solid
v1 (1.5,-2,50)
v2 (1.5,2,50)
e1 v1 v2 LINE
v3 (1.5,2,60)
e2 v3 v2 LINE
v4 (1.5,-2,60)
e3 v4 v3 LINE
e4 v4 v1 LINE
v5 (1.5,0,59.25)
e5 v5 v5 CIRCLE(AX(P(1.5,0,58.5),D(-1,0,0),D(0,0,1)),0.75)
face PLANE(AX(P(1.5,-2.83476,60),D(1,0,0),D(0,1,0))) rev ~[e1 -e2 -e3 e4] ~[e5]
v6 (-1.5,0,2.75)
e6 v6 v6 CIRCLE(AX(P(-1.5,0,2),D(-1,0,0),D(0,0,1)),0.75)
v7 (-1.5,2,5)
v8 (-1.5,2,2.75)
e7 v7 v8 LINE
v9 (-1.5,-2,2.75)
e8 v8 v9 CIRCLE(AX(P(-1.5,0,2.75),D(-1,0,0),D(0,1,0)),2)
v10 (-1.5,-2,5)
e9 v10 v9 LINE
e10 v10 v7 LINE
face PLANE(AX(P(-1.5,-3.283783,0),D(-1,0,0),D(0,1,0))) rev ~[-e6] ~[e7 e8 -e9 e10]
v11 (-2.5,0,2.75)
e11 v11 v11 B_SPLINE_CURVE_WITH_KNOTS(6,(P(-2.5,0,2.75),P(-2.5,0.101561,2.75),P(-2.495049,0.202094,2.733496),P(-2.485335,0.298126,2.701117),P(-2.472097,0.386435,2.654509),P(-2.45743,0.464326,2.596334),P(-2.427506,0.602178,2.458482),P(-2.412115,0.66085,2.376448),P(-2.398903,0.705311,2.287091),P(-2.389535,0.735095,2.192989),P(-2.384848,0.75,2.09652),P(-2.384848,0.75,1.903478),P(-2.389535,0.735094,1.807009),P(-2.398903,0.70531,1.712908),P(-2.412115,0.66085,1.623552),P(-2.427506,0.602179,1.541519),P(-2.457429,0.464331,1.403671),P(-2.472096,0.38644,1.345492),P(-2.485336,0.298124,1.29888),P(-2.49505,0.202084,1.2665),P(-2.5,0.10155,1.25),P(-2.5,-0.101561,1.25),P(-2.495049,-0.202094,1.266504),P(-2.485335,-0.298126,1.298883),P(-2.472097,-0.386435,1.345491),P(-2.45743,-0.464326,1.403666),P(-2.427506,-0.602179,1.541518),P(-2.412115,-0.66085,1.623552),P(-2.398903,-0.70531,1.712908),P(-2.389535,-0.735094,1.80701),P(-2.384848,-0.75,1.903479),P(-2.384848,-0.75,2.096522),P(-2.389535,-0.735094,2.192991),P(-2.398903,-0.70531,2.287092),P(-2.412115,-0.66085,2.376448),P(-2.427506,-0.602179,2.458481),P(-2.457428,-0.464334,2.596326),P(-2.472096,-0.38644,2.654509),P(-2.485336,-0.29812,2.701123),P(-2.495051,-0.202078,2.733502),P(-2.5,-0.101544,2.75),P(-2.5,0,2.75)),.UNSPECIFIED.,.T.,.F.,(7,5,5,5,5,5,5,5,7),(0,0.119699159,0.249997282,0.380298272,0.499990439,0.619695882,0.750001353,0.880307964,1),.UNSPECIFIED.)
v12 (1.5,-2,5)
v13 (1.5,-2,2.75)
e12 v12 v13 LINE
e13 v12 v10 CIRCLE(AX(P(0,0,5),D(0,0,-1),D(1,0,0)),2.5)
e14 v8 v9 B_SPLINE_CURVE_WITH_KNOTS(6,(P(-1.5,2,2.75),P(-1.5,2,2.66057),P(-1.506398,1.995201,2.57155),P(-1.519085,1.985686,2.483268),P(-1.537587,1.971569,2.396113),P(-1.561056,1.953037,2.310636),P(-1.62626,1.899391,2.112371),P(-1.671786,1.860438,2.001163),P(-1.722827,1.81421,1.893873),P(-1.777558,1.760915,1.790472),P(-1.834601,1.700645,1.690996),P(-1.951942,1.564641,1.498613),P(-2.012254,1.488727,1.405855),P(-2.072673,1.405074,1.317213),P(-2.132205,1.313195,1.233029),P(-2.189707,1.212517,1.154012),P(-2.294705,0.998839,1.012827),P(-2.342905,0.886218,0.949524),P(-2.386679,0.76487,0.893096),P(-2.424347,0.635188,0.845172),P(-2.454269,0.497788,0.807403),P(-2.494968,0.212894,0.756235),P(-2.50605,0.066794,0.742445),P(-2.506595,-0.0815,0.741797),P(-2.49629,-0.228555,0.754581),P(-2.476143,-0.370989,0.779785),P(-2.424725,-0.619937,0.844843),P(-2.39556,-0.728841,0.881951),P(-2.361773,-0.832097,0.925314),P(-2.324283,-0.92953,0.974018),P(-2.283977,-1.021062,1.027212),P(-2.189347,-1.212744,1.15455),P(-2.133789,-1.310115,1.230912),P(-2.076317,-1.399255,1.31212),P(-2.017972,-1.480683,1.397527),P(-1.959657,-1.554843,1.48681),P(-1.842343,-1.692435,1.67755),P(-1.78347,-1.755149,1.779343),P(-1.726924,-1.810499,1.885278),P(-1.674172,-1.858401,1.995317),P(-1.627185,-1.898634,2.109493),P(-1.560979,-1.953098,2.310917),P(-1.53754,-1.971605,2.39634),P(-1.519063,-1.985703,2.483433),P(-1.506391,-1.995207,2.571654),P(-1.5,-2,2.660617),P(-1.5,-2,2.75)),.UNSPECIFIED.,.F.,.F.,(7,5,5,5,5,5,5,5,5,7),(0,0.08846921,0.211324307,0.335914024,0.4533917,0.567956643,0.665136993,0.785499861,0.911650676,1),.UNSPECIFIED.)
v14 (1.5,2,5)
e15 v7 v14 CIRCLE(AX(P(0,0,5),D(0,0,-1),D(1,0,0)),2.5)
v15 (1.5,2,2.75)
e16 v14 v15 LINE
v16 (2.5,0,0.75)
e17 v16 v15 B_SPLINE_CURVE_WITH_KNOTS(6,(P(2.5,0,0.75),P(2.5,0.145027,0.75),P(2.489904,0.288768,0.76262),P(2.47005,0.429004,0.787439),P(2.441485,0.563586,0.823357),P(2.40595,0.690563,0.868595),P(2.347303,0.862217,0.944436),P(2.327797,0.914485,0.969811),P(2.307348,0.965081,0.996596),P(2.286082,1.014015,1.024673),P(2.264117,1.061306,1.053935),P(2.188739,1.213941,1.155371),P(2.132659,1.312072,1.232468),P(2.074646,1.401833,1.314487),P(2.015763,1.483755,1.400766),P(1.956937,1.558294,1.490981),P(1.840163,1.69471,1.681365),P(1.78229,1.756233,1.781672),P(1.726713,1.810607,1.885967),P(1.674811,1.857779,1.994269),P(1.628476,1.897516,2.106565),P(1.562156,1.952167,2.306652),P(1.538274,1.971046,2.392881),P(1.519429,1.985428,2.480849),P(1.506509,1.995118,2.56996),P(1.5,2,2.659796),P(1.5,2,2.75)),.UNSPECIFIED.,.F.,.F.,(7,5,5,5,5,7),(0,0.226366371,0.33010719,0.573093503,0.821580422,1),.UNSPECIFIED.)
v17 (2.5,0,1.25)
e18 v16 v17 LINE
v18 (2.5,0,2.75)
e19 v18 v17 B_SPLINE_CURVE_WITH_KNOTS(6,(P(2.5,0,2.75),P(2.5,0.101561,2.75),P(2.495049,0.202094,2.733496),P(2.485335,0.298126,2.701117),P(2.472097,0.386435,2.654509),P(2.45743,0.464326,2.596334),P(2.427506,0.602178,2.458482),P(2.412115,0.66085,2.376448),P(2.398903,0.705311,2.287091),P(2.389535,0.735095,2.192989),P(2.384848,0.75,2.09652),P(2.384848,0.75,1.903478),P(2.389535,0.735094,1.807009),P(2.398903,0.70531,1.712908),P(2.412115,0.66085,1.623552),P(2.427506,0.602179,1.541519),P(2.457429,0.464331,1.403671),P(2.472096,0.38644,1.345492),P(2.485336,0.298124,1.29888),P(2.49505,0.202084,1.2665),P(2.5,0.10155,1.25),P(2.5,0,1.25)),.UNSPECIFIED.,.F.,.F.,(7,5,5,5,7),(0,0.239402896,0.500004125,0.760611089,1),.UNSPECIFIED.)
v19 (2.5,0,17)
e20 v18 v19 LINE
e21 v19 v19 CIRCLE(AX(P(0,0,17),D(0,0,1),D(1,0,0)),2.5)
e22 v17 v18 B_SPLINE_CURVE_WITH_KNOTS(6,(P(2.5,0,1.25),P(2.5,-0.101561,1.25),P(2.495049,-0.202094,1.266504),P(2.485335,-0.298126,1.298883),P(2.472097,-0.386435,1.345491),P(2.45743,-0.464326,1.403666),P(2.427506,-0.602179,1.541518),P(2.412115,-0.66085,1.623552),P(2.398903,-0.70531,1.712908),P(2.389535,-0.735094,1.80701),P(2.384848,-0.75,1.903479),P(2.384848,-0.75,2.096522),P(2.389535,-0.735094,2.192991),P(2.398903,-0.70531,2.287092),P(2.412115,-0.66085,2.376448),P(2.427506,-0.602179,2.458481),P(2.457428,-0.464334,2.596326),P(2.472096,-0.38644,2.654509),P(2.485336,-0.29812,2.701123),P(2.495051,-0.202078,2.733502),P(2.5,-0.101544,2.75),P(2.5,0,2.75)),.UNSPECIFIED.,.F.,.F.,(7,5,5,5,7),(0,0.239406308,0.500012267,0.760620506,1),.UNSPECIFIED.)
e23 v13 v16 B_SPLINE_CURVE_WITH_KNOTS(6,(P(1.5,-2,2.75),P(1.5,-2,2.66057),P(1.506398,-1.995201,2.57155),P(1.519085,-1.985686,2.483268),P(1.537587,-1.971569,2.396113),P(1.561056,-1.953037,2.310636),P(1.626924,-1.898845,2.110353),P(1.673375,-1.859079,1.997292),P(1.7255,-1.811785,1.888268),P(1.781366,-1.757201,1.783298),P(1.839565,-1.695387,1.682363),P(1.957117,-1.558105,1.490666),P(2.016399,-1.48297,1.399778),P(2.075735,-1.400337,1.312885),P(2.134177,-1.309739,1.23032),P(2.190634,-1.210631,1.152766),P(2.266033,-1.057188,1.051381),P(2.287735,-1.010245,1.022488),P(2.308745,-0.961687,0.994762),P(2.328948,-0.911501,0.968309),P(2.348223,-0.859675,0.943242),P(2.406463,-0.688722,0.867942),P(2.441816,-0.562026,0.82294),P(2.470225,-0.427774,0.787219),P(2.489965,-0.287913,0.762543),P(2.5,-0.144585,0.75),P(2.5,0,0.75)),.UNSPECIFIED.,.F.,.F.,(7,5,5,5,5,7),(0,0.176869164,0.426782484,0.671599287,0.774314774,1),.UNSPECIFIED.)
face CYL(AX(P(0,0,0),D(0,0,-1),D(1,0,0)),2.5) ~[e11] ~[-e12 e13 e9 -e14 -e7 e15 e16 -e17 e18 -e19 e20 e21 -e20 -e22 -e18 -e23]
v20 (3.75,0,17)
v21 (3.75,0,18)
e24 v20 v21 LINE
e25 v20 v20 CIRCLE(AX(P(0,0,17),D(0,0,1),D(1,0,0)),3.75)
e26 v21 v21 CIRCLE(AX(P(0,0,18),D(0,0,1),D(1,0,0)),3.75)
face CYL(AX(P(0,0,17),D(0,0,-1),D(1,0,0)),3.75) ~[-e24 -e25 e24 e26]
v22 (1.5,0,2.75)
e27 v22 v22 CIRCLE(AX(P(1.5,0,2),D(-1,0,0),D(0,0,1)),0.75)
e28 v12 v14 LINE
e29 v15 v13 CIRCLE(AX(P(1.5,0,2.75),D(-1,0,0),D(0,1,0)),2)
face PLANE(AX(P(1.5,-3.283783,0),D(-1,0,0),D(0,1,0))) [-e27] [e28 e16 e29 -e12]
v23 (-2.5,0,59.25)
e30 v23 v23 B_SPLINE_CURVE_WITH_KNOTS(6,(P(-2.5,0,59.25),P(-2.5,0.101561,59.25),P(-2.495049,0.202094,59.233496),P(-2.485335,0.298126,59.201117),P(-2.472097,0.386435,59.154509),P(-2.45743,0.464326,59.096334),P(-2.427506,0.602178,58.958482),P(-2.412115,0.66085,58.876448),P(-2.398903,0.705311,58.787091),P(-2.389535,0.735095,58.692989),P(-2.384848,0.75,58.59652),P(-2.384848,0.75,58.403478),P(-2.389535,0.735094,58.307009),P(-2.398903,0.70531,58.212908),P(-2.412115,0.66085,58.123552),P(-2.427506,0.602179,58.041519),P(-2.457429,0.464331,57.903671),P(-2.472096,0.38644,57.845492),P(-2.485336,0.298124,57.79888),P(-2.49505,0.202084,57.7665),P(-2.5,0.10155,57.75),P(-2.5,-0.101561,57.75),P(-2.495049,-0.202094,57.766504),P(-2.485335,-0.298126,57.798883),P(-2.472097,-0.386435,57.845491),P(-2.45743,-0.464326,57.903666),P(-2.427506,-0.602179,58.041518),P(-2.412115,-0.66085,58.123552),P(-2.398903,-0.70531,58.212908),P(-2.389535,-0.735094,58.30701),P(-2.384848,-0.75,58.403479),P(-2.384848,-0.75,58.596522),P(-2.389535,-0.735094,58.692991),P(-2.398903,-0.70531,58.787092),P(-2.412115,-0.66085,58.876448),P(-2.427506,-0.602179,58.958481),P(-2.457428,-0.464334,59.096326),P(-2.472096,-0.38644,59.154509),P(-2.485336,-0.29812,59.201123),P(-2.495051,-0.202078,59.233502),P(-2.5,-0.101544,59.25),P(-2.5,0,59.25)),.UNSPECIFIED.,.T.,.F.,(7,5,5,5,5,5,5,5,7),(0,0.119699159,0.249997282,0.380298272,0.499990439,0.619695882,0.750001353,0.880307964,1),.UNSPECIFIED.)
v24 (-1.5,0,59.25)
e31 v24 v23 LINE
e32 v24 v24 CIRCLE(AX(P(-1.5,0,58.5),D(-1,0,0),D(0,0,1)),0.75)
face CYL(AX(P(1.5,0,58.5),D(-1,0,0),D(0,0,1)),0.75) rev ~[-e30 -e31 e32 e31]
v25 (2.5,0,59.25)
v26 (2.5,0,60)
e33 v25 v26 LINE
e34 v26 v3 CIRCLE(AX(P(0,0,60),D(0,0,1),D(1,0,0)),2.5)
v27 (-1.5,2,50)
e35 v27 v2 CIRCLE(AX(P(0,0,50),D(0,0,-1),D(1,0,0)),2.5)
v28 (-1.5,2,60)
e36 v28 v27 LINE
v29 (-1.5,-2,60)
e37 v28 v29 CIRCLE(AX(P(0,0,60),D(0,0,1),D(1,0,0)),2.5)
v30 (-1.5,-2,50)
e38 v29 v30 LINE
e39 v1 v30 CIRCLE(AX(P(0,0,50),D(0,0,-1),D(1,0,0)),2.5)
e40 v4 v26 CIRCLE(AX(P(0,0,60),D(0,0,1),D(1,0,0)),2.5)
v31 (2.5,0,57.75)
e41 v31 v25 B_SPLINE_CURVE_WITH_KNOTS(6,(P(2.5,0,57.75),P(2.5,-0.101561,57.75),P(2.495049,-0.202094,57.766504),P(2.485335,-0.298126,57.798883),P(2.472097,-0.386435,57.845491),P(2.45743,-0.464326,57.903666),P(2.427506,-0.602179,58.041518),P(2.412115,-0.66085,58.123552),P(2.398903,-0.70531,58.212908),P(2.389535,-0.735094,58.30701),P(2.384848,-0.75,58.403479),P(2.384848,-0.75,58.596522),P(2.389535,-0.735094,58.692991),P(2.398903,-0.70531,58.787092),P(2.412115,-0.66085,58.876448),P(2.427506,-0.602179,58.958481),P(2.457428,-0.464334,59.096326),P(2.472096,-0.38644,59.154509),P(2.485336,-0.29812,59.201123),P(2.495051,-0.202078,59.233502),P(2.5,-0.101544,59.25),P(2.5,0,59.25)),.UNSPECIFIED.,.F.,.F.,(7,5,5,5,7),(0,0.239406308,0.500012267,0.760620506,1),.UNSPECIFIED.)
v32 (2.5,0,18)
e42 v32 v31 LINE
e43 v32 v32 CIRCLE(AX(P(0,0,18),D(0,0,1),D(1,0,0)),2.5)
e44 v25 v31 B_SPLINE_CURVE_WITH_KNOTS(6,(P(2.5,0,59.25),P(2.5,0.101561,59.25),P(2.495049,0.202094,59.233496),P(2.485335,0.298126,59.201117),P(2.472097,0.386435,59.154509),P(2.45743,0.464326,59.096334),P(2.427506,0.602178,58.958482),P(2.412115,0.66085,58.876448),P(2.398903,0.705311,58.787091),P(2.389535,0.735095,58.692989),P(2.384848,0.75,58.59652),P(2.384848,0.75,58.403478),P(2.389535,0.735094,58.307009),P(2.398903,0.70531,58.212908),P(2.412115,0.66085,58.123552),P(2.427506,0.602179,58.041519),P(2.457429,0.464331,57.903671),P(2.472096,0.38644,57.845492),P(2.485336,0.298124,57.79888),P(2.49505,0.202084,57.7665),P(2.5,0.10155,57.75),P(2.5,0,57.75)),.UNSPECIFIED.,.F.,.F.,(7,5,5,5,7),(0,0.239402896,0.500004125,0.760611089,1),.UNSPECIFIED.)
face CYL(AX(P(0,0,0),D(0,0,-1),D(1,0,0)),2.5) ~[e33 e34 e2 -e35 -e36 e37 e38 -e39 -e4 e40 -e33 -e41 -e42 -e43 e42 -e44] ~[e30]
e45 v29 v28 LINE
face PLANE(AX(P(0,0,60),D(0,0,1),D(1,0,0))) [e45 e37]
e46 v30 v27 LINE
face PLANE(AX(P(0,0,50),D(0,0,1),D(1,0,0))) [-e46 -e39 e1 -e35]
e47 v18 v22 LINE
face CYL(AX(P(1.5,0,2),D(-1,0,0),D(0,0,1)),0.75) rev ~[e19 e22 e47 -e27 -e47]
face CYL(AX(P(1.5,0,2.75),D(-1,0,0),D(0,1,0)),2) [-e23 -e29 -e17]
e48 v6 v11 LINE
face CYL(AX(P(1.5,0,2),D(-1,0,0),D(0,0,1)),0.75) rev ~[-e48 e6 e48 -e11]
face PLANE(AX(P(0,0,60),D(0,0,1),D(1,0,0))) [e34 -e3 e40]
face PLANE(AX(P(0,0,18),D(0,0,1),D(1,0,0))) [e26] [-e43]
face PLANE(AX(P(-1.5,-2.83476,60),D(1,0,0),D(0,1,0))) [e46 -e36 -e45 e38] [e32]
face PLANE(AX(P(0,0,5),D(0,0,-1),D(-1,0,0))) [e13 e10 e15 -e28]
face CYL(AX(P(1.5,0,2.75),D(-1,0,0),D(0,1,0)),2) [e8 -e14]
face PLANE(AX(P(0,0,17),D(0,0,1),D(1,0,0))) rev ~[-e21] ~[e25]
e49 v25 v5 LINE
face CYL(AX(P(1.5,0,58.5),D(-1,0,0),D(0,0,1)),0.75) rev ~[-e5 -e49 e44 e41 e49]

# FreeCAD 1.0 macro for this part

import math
import FreeCAD as App
import Part
import Sketcher
from FreeCAD import Vector
Q = App.Units.Quantity

doc = App.newDocument("Part")
body = doc.addObject("PartDesign::Body", "Body")

# Sketch on XY plane
sketch1 = doc.addObject("Sketcher::SketchObject", "Sketch")
body.addObject(sketch1)
sketch1.AttachmentSupport = (doc.XY_Plane, [""])
sketch1.MapMode = "FlatFace"
sketch1.addGeometry(Part.Circle(Vector(0, 0, 0), Vector(0, 0, 1), 2.5), False)
sketch1.addConstraint([
    Sketcher.Constraint("Coincident", 0, 3, -1, 1),
    Sketcher.Constraint("Diameter", 0, Q("5 mm")),
])
pad1 = doc.addObject("PartDesign::Pad", "Pad")
body.addObject(pad1)
pad1.Profile = sketch1
pad1.Length = 60

# Sketch on XY plane
sketch2 = doc.addObject("Sketcher::SketchObject", "Sketch001")
body.addObject(sketch2)
sketch2.AttachmentSupport = (doc.XY_Plane, [""])
sketch2.MapMode = "FlatFace"
sketch2.AttachmentOffset = App.Placement(Vector(0, 0, 17), App.Rotation())
sketch2.addGeometry([
    Part.Circle(Vector(0, 0, 0), Vector(0, 0, 1), 3.75),
    Part.Circle(Vector(0, 0, 0), Vector(0, 0, 1), 2.5),
], False)
sketch2.addConstraint([
    Sketcher.Constraint("Coincident", 0, 3, -1, 1),
    Sketcher.Constraint("Coincident", 1, 3, -1, 1),
    Sketcher.Constraint("Diameter", 1, Q("5 mm")),
    Sketcher.Constraint("Diameter", 0, Q("7.5 mm")),
])
pad2 = doc.addObject("PartDesign::Pad", "Pad001")
body.addObject(pad2)
pad2.Profile = sketch2
pad2.Length = 1

# Sketch on XY plane
sketch3 = doc.addObject("Sketcher::SketchObject", "Sketch002")
body.addObject(sketch3)
sketch3.AttachmentSupport = (doc.XY_Plane, [""])
sketch3.MapMode = "FlatFace"
sketch3.AttachmentOffset = App.Placement(Vector(0, 0, 60), App.Rotation())
sketch3.addGeometry([
    Part.LineSegment(Vector(-1.5, 2.83476, 0), Vector(-1.5, -2.83476, 0)),
    Part.LineSegment(Vector(-1.5, -2.83476, 0), Vector(1.5, -2.83476, 0)),
    Part.LineSegment(Vector(1.5, -2.83476, 0), Vector(1.5, 2.83476, 0)),
    Part.LineSegment(Vector(1.5, 2.83476, 0), Vector(-1.5, 2.83476, 0)),
], False)
sketch3.addConstraint([
    Sketcher.Constraint("Coincident", 0, 2, 1, 1),
    Sketcher.Constraint("Coincident", 1, 2, 2, 1),
    Sketcher.Constraint("Coincident", 2, 2, 3, 1),
    Sketcher.Constraint("Coincident", 3, 2, 0, 1),
    Sketcher.Constraint("Vertical", 0),
    Sketcher.Constraint("Horizontal", 1),
    Sketcher.Constraint("Vertical", 2),
    Sketcher.Constraint("Horizontal", 3),
    Sketcher.Constraint("Symmetric", 0, 2, 2, 2, -1, 1),
    Sketcher.Constraint("DistanceX", 1, 1, 1, 2, Q("3 mm")),
    Sketcher.Constraint("DistanceY", 0, 2, 0, 1, Q("5.669521 mm")),
])
pocket1 = doc.addObject("PartDesign::Pocket", "Pocket")
body.addObject(pocket1)
pocket1.Profile = sketch3
pocket1.Length = 20
pocket1.Midplane = True

# Sketch on YZ plane
sketch4 = doc.addObject("Sketcher::SketchObject", "Sketch003")
body.addObject(sketch4)
sketch4.AttachmentSupport = (doc.YZ_Plane, [""])
sketch4.MapMode = "FlatFace"
sketch4.AttachmentOffset = App.Placement(Vector(0, 0, 1.5), App.Rotation())
sketch4.addGeometry(Part.Circle(Vector(0, 58.5, 0), Vector(0, 0, 1), 0.75), False)
sketch4.addConstraint([
    Sketcher.Constraint("PointOnObject", 0, 3, -2),
    Sketcher.Constraint("Diameter", 0, Q("1.5 mm")),
    Sketcher.Constraint("DistanceY", -1, 1, 0, 3, Q("58.5 mm")),
])
pocket2 = doc.addObject("PartDesign::Pocket", "Pocket001")
body.addObject(pocket2)
pocket2.Profile = sketch4
pocket2.Length = 9
pocket2.Midplane = True

# Sketch on XY plane
sketch5 = doc.addObject("Sketcher::SketchObject", "Sketch004")
body.addObject(sketch5)
sketch5.AttachmentSupport = (doc.XY_Plane, [""])
sketch5.MapMode = "FlatFace"
sketch5.addGeometry([
    Part.LineSegment(Vector(1.5, 3.283783, 0), Vector(1.5, -3.283783, 0)),
    Part.LineSegment(Vector(1.5, -3.283783, 0), Vector(-1.5, -3.283783, 0)),
    Part.LineSegment(Vector(-1.5, -3.283783, 0), Vector(-1.5, 3.283783, 0)),
    Part.LineSegment(Vector(-1.5, 3.283783, 0), Vector(1.5, 3.283783, 0)),
], False)
sketch5.addConstraint([
    Sketcher.Constraint("Coincident", 0, 2, 1, 1),
    Sketcher.Constraint("Coincident", 1, 2, 2, 1),
    Sketcher.Constraint("Coincident", 2, 2, 3, 1),
    Sketcher.Constraint("Coincident", 3, 2, 0, 1),
    Sketcher.Constraint("Vertical", 0),
    Sketcher.Constraint("Horizontal", 1),
    Sketcher.Constraint("Vertical", 2),
    Sketcher.Constraint("Horizontal", 3),
    Sketcher.Constraint("Symmetric", 0, 2, 2, 2, -1, 1),
    Sketcher.Constraint("DistanceX", 1, 2, 1, 1, Q("3 mm")),
    Sketcher.Constraint("DistanceY", 0, 2, 0, 1, Q("6.567565 mm")),
])
pocket3 = doc.addObject("PartDesign::Pocket", "Pocket002")
body.addObject(pocket3)
pocket3.Profile = sketch5
pocket3.Length = 5
pocket3.Reversed = True

# Sketch on YZ plane
sketch6 = doc.addObject("Sketcher::SketchObject", "Sketch005")
body.addObject(sketch6)
sketch6.AttachmentSupport = (doc.YZ_Plane, [""])
sketch6.MapMode = "FlatFace"
sketch6.AttachmentOffset = App.Placement(Vector(0, 0, 1.5), App.Rotation())
sketch6.addGeometry(Part.Circle(Vector(0, 2, 0), Vector(0, 0, 1), 0.75), False)
sketch6.addConstraint([
    Sketcher.Constraint("PointOnObject", 0, 3, -2),
    Sketcher.Constraint("Diameter", 0, Q("1.5 mm")),
    Sketcher.Constraint("DistanceY", -1, 1, 0, 3, Q("2 mm")),
])
pocket4 = doc.addObject("PartDesign::Pocket", "Pocket003")
body.addObject(pocket4)
pocket4.Profile = sketch6
pocket4.Length = 10
pocket4.Midplane = True

# Sketch on YZ plane
sketch7 = doc.addObject("Sketcher::SketchObject", "Sketch006")
body.addObject(sketch7)
sketch7.AttachmentSupport = (doc.YZ_Plane, [""])
sketch7.MapMode = "FlatFace"
sketch7.AttachmentOffset = App.Placement(Vector(0, 0, 1.5), App.Rotation())
sketch7.addGeometry([
    Part.LineSegment(Vector(2, 2.75, 0), Vector(2, 0, 0)),
    Part.LineSegment(Vector(2, 0, 0), Vector(-2, 0, 0)),
    Part.LineSegment(Vector(-2, 0, 0), Vector(-2, 2.75, 0)),
    Part.ArcOfCircle(Part.Circle(Vector(0, 2.75, 0), Vector(0, 0, 1), 2), math.radians(180), math.radians(360)),
], False)
sketch7.addConstraint([
    Sketcher.Constraint("Coincident", 0, 2, 1, 1),
    Sketcher.Constraint("Coincident", 1, 2, 2, 1),
    Sketcher.Constraint("Tangent", 2, 2, 3, 1),
    Sketcher.Constraint("Tangent", 3, 2, 0, 1),
    Sketcher.Constraint("Vertical", 0),
    Sketcher.Constraint("Horizontal", 1),
    Sketcher.Constraint("Vertical", 2),
    Sketcher.Constraint("Symmetric", 0, 2, 1, 2, -1, 1),
    Sketcher.Constraint("Radius", 3, Q("2 mm")),
    Sketcher.Constraint("DistanceY", 0, 2, 0, 1, Q("2.75 mm")),
])
pocket5 = doc.addObject("PartDesign::Pocket", "Pocket004")
body.addObject(pocket5)
pocket5.Profile = sketch7
pocket5.Length = 10
pocket5.Midplane = True

doc.recompute()
